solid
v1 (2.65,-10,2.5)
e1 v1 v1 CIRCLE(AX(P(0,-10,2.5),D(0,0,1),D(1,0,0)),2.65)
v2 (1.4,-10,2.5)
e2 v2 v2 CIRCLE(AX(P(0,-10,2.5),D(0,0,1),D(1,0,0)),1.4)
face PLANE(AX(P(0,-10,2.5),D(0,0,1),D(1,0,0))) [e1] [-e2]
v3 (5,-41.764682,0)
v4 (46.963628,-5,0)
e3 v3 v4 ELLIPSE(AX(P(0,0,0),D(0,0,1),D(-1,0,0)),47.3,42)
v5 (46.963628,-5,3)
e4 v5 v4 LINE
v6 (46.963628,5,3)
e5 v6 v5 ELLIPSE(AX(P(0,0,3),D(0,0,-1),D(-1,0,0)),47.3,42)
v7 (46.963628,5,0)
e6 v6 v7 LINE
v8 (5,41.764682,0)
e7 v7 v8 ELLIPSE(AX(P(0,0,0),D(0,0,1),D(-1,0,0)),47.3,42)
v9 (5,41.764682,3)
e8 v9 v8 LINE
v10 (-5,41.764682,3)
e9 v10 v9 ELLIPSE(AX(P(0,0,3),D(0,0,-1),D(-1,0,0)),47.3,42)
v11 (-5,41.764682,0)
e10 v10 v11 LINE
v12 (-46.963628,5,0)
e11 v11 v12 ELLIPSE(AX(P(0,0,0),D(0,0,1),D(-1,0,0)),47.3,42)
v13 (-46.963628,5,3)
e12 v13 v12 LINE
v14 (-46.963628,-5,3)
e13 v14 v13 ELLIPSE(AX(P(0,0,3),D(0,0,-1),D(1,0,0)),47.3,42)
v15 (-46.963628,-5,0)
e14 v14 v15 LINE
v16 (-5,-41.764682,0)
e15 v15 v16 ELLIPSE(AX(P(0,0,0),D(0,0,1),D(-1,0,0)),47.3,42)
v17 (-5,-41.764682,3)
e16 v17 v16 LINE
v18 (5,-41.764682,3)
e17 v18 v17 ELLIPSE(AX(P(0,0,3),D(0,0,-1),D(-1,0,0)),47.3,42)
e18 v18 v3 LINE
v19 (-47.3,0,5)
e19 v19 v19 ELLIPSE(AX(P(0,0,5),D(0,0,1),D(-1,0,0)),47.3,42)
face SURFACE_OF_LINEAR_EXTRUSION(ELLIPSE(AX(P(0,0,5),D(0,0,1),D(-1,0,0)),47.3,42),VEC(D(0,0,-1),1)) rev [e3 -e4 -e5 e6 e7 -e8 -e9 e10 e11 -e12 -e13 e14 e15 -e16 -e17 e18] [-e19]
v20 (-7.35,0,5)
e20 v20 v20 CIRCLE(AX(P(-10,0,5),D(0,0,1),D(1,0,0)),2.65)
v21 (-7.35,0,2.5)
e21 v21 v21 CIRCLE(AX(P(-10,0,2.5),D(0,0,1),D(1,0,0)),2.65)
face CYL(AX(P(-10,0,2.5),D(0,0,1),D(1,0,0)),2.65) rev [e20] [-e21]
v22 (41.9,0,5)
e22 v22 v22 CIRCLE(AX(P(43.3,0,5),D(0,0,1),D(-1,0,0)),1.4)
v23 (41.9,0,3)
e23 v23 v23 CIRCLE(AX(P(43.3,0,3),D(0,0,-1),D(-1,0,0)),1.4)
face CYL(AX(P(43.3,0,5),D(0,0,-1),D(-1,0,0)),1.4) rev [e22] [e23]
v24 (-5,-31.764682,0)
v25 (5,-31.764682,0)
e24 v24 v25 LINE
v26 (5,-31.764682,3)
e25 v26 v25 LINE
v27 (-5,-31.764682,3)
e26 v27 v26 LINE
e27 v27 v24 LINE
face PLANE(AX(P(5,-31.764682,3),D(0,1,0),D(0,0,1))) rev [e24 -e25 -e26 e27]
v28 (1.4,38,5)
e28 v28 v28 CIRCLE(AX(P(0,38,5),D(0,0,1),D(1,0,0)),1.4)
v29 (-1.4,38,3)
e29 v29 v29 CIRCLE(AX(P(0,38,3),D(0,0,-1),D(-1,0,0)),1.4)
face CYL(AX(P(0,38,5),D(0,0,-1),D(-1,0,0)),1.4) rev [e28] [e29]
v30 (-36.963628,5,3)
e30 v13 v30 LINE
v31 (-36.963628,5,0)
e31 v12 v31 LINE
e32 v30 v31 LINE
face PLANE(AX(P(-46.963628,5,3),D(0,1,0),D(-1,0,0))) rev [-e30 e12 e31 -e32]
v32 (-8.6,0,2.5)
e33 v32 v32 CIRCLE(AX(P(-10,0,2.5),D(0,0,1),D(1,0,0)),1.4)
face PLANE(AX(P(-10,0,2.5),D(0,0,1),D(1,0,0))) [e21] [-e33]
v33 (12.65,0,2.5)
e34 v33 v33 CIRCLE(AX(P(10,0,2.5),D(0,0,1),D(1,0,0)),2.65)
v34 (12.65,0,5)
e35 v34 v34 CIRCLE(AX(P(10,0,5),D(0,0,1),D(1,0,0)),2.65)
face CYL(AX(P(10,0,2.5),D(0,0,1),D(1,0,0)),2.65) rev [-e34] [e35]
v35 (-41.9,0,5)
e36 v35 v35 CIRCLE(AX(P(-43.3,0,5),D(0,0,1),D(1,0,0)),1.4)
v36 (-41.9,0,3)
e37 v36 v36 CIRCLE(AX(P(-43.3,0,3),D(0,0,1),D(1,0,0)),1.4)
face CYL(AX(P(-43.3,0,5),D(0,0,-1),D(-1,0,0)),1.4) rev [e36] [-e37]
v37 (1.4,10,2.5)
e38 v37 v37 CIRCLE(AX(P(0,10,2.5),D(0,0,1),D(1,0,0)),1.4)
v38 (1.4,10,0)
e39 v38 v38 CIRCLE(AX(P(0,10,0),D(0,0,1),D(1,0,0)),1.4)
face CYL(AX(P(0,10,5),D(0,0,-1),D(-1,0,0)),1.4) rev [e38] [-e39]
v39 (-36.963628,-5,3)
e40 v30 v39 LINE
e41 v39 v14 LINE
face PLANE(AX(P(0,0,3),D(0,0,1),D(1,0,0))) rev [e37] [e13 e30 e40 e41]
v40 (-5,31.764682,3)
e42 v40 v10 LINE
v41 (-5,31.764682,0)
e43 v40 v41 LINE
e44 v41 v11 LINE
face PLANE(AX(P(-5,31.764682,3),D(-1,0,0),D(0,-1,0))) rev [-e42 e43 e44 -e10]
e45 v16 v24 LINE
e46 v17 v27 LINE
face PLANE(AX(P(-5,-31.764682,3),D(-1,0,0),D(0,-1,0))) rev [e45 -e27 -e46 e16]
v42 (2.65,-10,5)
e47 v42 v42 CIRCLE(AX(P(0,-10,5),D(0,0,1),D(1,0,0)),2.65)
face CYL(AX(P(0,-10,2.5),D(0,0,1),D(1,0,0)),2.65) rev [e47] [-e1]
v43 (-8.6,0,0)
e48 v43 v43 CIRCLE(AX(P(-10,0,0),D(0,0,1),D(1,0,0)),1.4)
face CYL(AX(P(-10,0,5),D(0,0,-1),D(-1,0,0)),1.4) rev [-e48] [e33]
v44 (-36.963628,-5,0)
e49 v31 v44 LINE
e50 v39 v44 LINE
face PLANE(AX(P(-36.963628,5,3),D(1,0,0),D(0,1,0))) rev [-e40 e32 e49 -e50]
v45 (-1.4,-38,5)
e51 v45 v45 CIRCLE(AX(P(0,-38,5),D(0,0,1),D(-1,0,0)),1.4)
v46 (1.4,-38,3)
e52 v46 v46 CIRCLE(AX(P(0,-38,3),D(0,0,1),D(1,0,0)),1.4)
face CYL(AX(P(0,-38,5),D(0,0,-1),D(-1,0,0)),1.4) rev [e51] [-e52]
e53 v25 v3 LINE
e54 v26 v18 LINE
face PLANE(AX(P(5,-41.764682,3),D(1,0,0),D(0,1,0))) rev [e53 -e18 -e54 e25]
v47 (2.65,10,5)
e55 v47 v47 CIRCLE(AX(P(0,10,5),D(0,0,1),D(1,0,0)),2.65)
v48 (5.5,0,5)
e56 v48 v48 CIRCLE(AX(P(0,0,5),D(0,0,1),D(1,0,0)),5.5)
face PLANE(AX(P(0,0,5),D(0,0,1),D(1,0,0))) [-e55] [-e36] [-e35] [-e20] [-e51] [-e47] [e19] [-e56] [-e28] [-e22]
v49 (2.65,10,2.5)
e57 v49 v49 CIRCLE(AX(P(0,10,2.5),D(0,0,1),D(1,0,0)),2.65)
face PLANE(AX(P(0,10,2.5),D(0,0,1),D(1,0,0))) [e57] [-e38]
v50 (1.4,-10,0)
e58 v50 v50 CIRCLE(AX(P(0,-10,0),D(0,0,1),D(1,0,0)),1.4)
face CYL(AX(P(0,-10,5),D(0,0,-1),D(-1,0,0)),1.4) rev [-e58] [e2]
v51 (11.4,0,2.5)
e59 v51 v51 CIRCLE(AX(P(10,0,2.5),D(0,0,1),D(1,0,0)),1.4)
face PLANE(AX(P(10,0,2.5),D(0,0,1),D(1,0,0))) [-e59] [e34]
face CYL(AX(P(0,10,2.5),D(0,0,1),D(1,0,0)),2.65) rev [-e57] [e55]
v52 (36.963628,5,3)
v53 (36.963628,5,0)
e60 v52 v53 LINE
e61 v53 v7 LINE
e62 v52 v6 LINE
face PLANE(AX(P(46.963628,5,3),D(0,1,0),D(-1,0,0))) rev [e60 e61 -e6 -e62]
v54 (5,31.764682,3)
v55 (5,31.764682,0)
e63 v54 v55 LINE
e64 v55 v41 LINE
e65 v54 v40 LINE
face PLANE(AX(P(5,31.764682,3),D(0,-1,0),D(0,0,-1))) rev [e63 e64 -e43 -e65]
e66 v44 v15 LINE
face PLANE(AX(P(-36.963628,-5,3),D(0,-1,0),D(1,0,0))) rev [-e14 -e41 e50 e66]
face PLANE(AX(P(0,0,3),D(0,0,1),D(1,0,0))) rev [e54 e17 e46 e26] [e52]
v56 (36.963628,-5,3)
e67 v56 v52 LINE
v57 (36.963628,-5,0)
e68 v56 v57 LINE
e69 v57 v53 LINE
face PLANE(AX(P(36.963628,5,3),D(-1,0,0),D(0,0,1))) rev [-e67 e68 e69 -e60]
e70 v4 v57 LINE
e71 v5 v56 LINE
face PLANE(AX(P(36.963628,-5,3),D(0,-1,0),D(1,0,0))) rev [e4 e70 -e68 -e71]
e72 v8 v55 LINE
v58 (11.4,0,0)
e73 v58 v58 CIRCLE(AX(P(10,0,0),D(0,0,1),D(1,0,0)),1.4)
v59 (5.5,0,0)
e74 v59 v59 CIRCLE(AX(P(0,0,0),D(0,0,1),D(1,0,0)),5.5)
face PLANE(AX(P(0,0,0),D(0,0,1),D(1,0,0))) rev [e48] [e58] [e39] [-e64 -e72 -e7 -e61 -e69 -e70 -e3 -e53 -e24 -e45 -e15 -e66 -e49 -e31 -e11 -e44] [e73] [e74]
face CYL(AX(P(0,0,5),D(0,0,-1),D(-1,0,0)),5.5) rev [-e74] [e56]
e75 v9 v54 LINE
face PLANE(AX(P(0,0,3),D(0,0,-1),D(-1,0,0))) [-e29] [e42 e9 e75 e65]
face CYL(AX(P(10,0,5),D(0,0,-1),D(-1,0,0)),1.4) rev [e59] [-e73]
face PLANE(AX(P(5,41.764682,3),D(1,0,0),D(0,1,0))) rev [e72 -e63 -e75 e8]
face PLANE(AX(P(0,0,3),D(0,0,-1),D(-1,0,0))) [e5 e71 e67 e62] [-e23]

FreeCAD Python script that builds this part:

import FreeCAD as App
import Part
import Sketcher
from FreeCAD import Vector
Q = App.Units.Quantity

doc = App.newDocument("Part")
body = doc.addObject("PartDesign::Body", "Body")

sketch1 = doc.addObject("Sketcher::SketchObject", "Sketch")
body.addObject(sketch1)
sketch1.AttachmentSupport = (doc.XY_Plane, [""])
sketch1.MapMode = "FlatFace"
sketch1.addGeometry([
    Part.Ellipse(Vector(-47.3, 0, 0), Vector(0, -42, 0), Vector(0, 0, 0)),
    Part.Circle(Vector(43.3, 0, 0), Vector(0, 0, 1), 1.4),
    Part.Circle(Vector(0, 38, 0), Vector(0, 0, 1), 1.4),
    Part.Circle(Vector(0, 10, 0), Vector(0, 0, 1), 1.4),
    Part.Circle(Vector(10, 0, 0), Vector(0, 0, 1), 1.4),
    Part.Circle(Vector(0, -38, 0), Vector(0, 0, 1), 1.4),
    Part.Circle(Vector(0, 0, 0), Vector(0, 0, 1), 5.5),
    Part.Circle(Vector(-10, 0, 0), Vector(0, 0, 1), 1.4),
    Part.Circle(Vector(0, -10, 0), Vector(0, 0, 1), 1.4),
    Part.Circle(Vector(-43.3, 0, 0), Vector(0, 0, 1), 1.4),
], False)
sketch1.addConstraint([
    Sketcher.Constraint("Block", 0),
    Sketcher.Constraint("Coincident", 6, 3, -1, 1),
    Sketcher.Constraint("Equal", 1, 2),
    Sketcher.Constraint("Equal", 2, 3),
    Sketcher.Constraint("Equal", 3, 4),
    Sketcher.Constraint("Equal", 4, 5),
    Sketcher.Constraint("Equal", 5, 7),
    Sketcher.Constraint("Equal", 7, 8),
    Sketcher.Constraint("Equal", 8, 9),
    Sketcher.Constraint("Symmetric", 2, 3, 5, 3, -1, 1),
    Sketcher.Constraint("Symmetric", 4, 3, 7, 3, -1, 1),
    Sketcher.Constraint("Symmetric", 3, 3, 8, 3, -1, 1),
    Sketcher.Constraint("Symmetric", 1, 3, 9, 3, -1, 1),
    Sketcher.Constraint("PointOnObject", 1, 3, -1),
    Sketcher.Constraint("PointOnObject", 2, 3, -2),
    Sketcher.Constraint("PointOnObject", 3, 3, -2),
    Sketcher.Constraint("PointOnObject", 4, 3, -1),
    Sketcher.Constraint("Diameter", 6, Q("11 mm")),
    Sketcher.Constraint("Diameter", 1, Q("2.8 mm")),
    Sketcher.Constraint("DistanceY", -1, 1, 2, 3, Q("38 mm")),
    Sketcher.Constraint("DistanceY", -1, 1, 3, 3, Q("10 mm")),
    Sketcher.Constraint("DistanceX", -1, 1, 4, 3, Q("10 mm")),
    Sketcher.Constraint("DistanceX", -1, 1, 1, 3, Q("43.3 mm")),
])
pad1 = doc.addObject("PartDesign::Pad", "Pad")
body.addObject(pad1)
pad1.Profile = sketch1
pad1.Length = 5

sketch2 = doc.addObject("Sketcher::SketchObject", "Sketch001")
body.addObject(sketch2)
sketch2.AttachmentSupport = (doc.XY_Plane, [""])
sketch2.MapMode = "FlatFace"
sketch2.AttachmentOffset = App.Placement(Vector(0, 0, 2.5), App.Rotation())
sketch2.addGeometry([
    Part.Circle(Vector(0, 10, 0), Vector(0, 0, 1), 2.65),
    Part.Circle(Vector(0, 10, 0), Vector(0, 0, 1), 1.4),
    Part.Circle(Vector(10, 0, 0), Vector(0, 0, 1), 2.65),
    Part.Circle(Vector(10, 0, 0), Vector(0, 0, 1), 1.4),
    Part.Circle(Vector(0, -10, 0), Vector(0, 0, 1), 2.65),
    Part.Circle(Vector(0, -10, 0), Vector(0, 0, 1), 1.4),
    Part.Circle(Vector(-10, 0, 0), Vector(0, 0, 1), 2.65),
    Part.Circle(Vector(-10, 0, 0), Vector(0, 0, 1), 1.4),
], False)
sketch2.addConstraint([
    Sketcher.Constraint("Coincident", 1, 3, 0, 3),
    Sketcher.Constraint("Coincident", 3, 3, 2, 3),
    Sketcher.Constraint("Coincident", 5, 3, 4, 3),
    Sketcher.Constraint("Coincident", 7, 3, 6, 3),
    Sketcher.Constraint("Equal", 0, 2),
    Sketcher.Constraint("Equal", 1, 3),
    Sketcher.Constraint("Equal", 2, 4),
    Sketcher.Constraint("Equal", 3, 5),
    Sketcher.Constraint("Equal", 4, 6),
    Sketcher.Constraint("Equal", 5, 7),
    Sketcher.Constraint("Symmetric", 0, 3, 4, 3, -1, 1),
    Sketcher.Constraint("Symmetric", 2, 3, 6, 3, -1, 1),
    Sketcher.Constraint("PointOnObject", 0, 3, -2),
    Sketcher.Constraint("PointOnObject", 2, 3, -1),
    Sketcher.Constraint("Diameter", 0, Q("5.3 mm")),
    Sketcher.Constraint("Diameter", 1, Q("2.8 mm")),
    Sketcher.Constraint("DistanceY", -1, 1, 0, 3, Q("10 mm")),
    Sketcher.Constraint("DistanceX", -1, 1, 2, 3, Q("10 mm")),
])
pocket1 = doc.addObject("PartDesign::Pocket", "Pocket")
body.addObject(pocket1)
pocket1.Profile = sketch2
pocket1.Length = 2.5
pocket1.Reversed = True

sketch3 = doc.addObject("Sketcher::SketchObject", "Sketch002")
body.addObject(sketch3)
sketch3.AttachmentSupport = (doc.XY_Plane, [""])
sketch3.MapMode = "FlatFace"
sketch3.addGeometry([
    Part.LineSegment(Vector(5, 41.764682, 0), Vector(5, 31.764682, 0)),
    Part.LineSegment(Vector(5, 31.764682, 0), Vector(-5, 31.764682, 0)),
    Part.LineSegment(Vector(-5, 31.764682, 0), Vector(-5, 41.764682, 0)),
    Part.BSplineCurve([Vector(-5, 41.764682, 0), Vector(0, 42.236644, 0), Vector(5, 41.764682, 0)], [3, 3], [1.464890217, 1.676702437], False, 2, [1, 0.994397188, 1], False),
    Part.LineSegment(Vector(36.963628, 5, 0), Vector(46.963628, 5, 0)),
    Part.BSplineCurve([Vector(46.963628, 5, 0), Vector(47.638781, 0, 0), Vector(46.963628, -5, 0)], [3, 3], [3.022262029, 3.260923278], False, 2, [1, 0.992888546, 1], False),
    Part.LineSegment(Vector(46.963628, -5, 0), Vector(36.963628, -5, 0)),
    Part.LineSegment(Vector(36.963628, -5, 0), Vector(36.963628, 5, 0)),
    Part.LineSegment(Vector(-46.963628, 5, 0), Vector(-36.963628, 5, 0)),
    Part.LineSegment(Vector(-36.963628, 5, 0), Vector(-36.963628, -5, 0)),
    Part.LineSegment(Vector(-36.963628, -5, 0), Vector(-46.963628, -5, 0)),
    Part.BSplineCurve([Vector(-46.963628, -5, 0), Vector(-47.638781, 0, 0), Vector(-46.963628, 5, 0)], [3, 3], [3.022262029, 3.260923278], False, 2, [1, 0.992888546, 1], False),
    Part.LineSegment(Vector(-5, -41.764682, 0), Vector(-5, -31.764682, 0)),
    Part.LineSegment(Vector(-5, -31.764682, 0), Vector(5, -31.764682, 0)),
    Part.LineSegment(Vector(5, -31.764682, 0), Vector(5, -41.764682, 0)),
    Part.BSplineCurve([Vector(5, -41.764682, 0), Vector(0, -42.236644, 0), Vector(-5, -41.764682, 0)], [3, 3], [4.60648287, 4.81829509], False, 2, [1, 0.994397188, 1], False),
], False)
sketch3.addConstraint([
    Sketcher.Constraint("Block", 3),
    Sketcher.Constraint("Block", 5),
    Sketcher.Constraint("Block", 11),
    Sketcher.Constraint("Block", 15),
    Sketcher.Constraint("Coincident", 0, 2, 1, 1),
    Sketcher.Constraint("Coincident", 1, 2, 2, 1),
    Sketcher.Constraint("Coincident", 2, 2, 3, 1),
    Sketcher.Constraint("Coincident", 3, 2, 0, 1),
    Sketcher.Constraint("Coincident", 4, 2, 5, 1),
    Sketcher.Constraint("Coincident", 5, 2, 6, 1),
    Sketcher.Constraint("Coincident", 6, 2, 7, 1),
    Sketcher.Constraint("Coincident", 7, 2, 4, 1),
    Sketcher.Constraint("Coincident", 8, 2, 9, 1),
    Sketcher.Constraint("Coincident", 9, 2, 10, 1),
    Sketcher.Constraint("Coincident", 10, 2, 11, 1),
    Sketcher.Constraint("Coincident", 11, 2, 8, 1),
    Sketcher.Constraint("Coincident", 12, 2, 13, 1),
    Sketcher.Constraint("Coincident", 13, 2, 14, 1),
    Sketcher.Constraint("Coincident", 14, 2, 15, 1),
    Sketcher.Constraint("Coincident", 15, 2, 12, 1),
    Sketcher.Constraint("Vertical", 0),
    Sketcher.Constraint("Horizontal", 1),
    Sketcher.Constraint("Vertical", 2),
    Sketcher.Constraint("Horizontal", 4),
    Sketcher.Constraint("Horizontal", 6),
    Sketcher.Constraint("Vertical", 7),
    Sketcher.Constraint("Horizontal", 8),
    Sketcher.Constraint("Vertical", 9),
    Sketcher.Constraint("Horizontal", 10),
    Sketcher.Constraint("Vertical", 12),
    Sketcher.Constraint("Horizontal", 13),
    Sketcher.Constraint("Vertical", 14),
    Sketcher.Constraint("DistanceX", 4, 1, 4, 2, Q("10 mm")),
    Sketcher.Constraint("DistanceX", 8, 1, 8, 2, Q("10 mm")),
    Sketcher.Constraint("DistanceY", 0, 2, 0, 1, Q("10 mm")),
    Sketcher.Constraint("DistanceY", 12, 1, 12, 2, Q("10 mm")),
])
pocket2 = doc.addObject("PartDesign::Pocket", "Pocket001")
body.addObject(pocket2)
pocket2.Profile = sketch3
pocket2.Length = 3
pocket2.Reversed = True

doc.recompute()
